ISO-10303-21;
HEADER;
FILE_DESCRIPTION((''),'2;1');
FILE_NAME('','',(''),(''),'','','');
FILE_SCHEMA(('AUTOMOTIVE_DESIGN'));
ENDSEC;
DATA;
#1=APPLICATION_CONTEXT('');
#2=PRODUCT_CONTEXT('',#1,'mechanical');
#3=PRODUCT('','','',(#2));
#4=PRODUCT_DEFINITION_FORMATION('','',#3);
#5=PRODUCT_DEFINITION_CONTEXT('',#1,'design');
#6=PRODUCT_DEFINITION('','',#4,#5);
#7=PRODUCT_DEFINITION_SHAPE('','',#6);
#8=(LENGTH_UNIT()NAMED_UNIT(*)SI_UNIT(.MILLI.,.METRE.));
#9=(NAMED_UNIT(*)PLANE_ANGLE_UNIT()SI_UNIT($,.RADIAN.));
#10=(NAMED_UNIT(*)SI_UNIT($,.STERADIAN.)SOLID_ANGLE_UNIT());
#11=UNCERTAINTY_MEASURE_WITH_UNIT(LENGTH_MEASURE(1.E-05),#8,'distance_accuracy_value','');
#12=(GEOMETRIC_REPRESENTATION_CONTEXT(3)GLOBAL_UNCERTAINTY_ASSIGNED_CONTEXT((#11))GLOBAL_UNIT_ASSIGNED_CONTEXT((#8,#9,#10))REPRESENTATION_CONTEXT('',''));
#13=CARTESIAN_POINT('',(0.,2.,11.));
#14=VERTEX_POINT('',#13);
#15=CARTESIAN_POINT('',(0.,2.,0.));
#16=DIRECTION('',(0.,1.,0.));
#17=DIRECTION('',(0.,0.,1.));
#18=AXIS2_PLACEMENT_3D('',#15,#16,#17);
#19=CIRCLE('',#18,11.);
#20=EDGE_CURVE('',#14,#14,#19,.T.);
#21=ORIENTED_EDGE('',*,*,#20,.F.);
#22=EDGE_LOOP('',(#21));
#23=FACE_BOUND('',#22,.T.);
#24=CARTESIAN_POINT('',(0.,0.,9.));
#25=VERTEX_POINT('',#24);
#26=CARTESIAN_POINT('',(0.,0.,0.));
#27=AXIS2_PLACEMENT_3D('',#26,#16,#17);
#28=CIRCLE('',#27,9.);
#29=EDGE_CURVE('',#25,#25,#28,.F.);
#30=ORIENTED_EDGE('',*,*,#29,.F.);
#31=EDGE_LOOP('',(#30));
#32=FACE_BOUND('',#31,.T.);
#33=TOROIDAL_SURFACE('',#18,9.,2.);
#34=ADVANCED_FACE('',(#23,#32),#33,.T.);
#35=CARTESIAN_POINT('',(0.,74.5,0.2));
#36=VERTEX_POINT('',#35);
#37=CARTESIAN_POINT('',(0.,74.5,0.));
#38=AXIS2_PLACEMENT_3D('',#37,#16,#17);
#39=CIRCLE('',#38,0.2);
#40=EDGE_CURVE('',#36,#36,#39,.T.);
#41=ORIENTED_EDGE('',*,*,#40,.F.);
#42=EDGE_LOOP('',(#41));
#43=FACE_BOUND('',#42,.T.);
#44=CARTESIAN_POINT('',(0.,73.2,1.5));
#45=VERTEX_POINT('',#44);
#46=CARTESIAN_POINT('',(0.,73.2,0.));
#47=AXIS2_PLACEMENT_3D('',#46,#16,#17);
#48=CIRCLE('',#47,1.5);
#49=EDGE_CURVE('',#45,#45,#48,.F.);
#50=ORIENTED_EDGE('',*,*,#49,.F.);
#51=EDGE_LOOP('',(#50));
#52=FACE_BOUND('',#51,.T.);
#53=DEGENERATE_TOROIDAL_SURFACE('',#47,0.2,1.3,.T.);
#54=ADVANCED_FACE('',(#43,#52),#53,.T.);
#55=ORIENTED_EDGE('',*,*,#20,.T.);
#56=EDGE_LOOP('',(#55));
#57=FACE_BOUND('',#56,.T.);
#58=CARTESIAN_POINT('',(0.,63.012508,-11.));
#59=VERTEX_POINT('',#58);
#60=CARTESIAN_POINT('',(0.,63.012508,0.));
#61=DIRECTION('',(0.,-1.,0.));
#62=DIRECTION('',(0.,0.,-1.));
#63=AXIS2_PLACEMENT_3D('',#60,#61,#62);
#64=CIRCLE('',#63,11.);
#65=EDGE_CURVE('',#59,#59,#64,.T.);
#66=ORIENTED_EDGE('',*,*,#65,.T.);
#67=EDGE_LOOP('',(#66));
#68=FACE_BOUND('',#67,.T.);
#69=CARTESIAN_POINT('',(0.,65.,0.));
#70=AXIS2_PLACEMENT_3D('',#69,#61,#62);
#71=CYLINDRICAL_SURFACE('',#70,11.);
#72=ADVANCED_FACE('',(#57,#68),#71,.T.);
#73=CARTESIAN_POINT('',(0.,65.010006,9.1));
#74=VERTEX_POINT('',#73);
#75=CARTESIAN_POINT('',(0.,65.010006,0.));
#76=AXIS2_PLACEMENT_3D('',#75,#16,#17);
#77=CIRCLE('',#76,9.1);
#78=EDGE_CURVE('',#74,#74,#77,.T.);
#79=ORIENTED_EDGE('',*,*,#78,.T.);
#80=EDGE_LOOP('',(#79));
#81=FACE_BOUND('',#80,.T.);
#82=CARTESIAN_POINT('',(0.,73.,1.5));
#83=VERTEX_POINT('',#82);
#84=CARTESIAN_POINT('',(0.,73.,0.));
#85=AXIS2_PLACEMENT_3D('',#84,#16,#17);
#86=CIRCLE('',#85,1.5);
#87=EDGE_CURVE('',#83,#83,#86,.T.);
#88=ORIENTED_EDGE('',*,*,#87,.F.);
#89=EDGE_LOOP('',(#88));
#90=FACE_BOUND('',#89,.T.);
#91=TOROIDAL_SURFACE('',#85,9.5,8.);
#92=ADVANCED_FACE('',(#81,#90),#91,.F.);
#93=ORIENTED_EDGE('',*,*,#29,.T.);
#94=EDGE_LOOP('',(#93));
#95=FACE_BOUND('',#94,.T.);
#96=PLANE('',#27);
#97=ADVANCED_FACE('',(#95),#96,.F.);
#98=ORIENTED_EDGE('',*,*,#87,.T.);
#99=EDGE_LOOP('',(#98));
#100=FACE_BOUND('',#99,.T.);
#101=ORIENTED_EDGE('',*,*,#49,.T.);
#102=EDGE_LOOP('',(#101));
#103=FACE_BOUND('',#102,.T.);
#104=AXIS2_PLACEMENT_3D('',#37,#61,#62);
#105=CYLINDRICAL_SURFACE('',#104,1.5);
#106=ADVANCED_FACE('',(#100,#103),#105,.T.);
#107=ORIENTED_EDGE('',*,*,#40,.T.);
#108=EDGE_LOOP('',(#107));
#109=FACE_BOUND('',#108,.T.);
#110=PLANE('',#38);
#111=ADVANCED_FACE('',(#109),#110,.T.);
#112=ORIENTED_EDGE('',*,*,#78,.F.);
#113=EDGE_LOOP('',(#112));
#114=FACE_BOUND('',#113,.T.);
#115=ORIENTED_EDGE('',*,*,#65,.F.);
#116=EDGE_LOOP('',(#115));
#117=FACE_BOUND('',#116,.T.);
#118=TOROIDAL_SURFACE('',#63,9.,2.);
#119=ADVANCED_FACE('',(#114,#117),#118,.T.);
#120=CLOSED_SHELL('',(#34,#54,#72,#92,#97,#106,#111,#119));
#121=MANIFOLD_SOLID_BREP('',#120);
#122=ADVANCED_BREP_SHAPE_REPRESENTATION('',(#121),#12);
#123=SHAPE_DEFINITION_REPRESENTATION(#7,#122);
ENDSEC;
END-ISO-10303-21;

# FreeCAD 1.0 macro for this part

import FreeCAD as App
import Part
import Sketcher

V = App.Vector


def edges_at(feature, points):
    """Names of the edges that pass closest to the given points."""
    edges = feature.Shape.Edges
    near = lambda p: min(range(len(edges)), key=lambda i: edges[i].distToShape(Part.Vertex(*p))[0])
    return sorted({f"Edge{near(p) + 1}" for p in points})

doc = App.newDocument("Part")
body = doc.addObject("PartDesign::Body", "Body")

sketch1 = doc.addObject("Sketcher::SketchObject", "Sketch")
body.addObject(sketch1)
sketch1.AttachmentSupport = (doc.XZ_Plane, [""])
sketch1.MapMode = "FlatFace"
sketch1.addGeometry(Part.Circle(V(0, 0, 0), V(0, 0, 1), 11), False)
sketch1.addConstraint([
    Sketcher.Constraint("Coincident", 0, 3, -1, 1),
    Sketcher.Constraint("Diameter", 0, 22.0),
])
pad1 = doc.addObject("PartDesign::Pad", "Pad")
body.addObject(pad1)
pad1.Profile = sketch1
pad1.Length = 65
pad1.Reversed = True

sketch2 = doc.addObject("Sketcher::SketchObject", "Sketch001")
body.addObject(sketch2)
sketch2.AttachmentSupport = (doc.XZ_Plane, [""])
sketch2.MapMode = "FlatFace"
sketch2.AttachmentOffset = App.Placement(V(0, 0, -65), App.Rotation())
sketch2.addGeometry(Part.Circle(V(0, 0, 0), V(0, 0, 1), 1.5), False)
sketch2.addConstraint([
    Sketcher.Constraint("Coincident", 0, 3, -1, 1),
    Sketcher.Constraint("Diameter", 0, 3.0),
])
pad2 = doc.addObject("PartDesign::Pad", "Pad001")
body.addObject(pad2)
pad2.Profile = sketch2
pad2.Length = 9.5
pad2.Reversed = True
doc.recompute()

fillet = doc.addObject("PartDesign::Fillet", "Fillet")
body.addObject(fillet)
fillet.Base = (pad2, edges_at(pad2, [(-1.5, 74.5, 0)]))
fillet.Radius = 1.3
doc.recompute()

fillet2 = doc.addObject("PartDesign::Fillet", "Fillet001")
body.addObject(fillet2)
fillet2.Base = (fillet, edges_at(fillet, [(-1.5, 65, 0)]))
fillet2.Radius = 8
doc.recompute()

fillet3 = doc.addObject("PartDesign::Fillet", "Fillet002")
body.addObject(fillet3)
fillet3.Base = (fillet2, edges_at(fillet2, [(-11, 65, 0)]))
fillet3.Radius = 2
doc.recompute()

fillet4 = doc.addObject("PartDesign::Fillet", "Fillet003")
body.addObject(fillet4)
fillet4.Base = (fillet3, edges_at(fillet3, [(-11, 0, 0)]))
fillet4.Radius = 2

doc.recompute()
